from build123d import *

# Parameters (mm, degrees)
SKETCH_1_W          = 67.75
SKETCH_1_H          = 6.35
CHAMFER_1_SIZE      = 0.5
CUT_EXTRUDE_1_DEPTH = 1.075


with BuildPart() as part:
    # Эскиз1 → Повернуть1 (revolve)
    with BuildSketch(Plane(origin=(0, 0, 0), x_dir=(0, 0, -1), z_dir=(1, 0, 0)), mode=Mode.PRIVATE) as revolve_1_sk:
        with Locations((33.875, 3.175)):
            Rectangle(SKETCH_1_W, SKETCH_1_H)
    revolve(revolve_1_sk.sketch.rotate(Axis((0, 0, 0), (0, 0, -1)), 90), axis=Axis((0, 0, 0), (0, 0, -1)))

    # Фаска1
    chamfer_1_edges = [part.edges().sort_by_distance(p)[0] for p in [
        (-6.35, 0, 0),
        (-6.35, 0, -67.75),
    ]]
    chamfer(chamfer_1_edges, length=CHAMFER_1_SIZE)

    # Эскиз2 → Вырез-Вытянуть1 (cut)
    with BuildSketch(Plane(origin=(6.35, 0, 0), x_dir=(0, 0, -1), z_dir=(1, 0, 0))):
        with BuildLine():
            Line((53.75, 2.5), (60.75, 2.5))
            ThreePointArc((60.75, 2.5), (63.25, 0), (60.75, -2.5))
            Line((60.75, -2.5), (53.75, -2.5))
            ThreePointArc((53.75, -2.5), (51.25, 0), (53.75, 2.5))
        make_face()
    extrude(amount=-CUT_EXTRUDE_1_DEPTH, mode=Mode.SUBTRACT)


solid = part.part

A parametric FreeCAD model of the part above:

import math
import FreeCAD as App
import Part
import Sketcher

V = App.Vector


def edges_at(feature, points):
    """Names of the edges that pass closest to the given points."""
    edges = feature.Shape.Edges
    near = lambda p: min(range(len(edges)), key=lambda i: edges[i].distToShape(Part.Vertex(*p))[0])
    return sorted({f"Edge{near(p) + 1}" for p in points})


def add_polygon(sketch, points):
    """Adds a closed chain of lines whose ends are joined by coincident constraints."""
    first, n = sketch.GeometryCount, len(points)
    for a, b in zip(points, points[1:] + points[:1]):
        sketch.addGeometry(Part.LineSegment(App.Vector(*a, 0), App.Vector(*b, 0)), False)
    for i in range(n):
        sketch.addConstraint(Sketcher.Constraint("Coincident", first + i, 2, first + (i + 1) % n, 1))

doc = App.newDocument("Part")
body = doc.addObject("PartDesign::Body", "Body")

# Sketch on YZ plane
sketch1 = body.newObject("Sketcher::SketchObject", "Sketch")
sketch1.AttachmentSupport = (doc.getObject("YZ_Plane"), [""])
sketch1.MapMode = "FlatFace"
add_polygon(sketch1, [(6, 0), (0, 0), (0, -68), (6, -68)])  # lines 0-3
sketch1.addConstraint([
    Sketcher.Constraint("Horizontal", 0),
    Sketcher.Constraint("Vertical", 1),
    Sketcher.Constraint("Horizontal", 2),
    Sketcher.Constraint("Vertical", 3),
    Sketcher.Constraint("Coincident", 0, 2, -1, 1),
    Sketcher.Constraint("DistanceX", 0, 2, 0, 1, 6.35),
    Sketcher.Constraint("DistanceY", 1, 2, 1, 1, 67.75),
])
revolution = body.newObject("PartDesign::Revolution", "Revolution")
revolution.Profile = sketch1
revolution.ReferenceAxis = (sketch1, ["V_Axis"])
revolution.Angle = 360
doc.recompute()

chamfer = body.newObject("PartDesign::Chamfer", "Chamfer")
chamfer.Base = (revolution, edges_at(revolution, [(-6.35, 0, 0), (-6.35, 0, -67.75)]))
chamfer.Size = 0.5

# Sketch on YZ plane
sketch2 = body.newObject("Sketcher::SketchObject", "Sketch001")
sketch2.AttachmentSupport = (doc.getObject("YZ_Plane"), [""])
sketch2.MapMode = "FlatFace"
sketch2.AttachmentOffset = App.Placement(V(0, 0, 6.35), App.Rotation())
sketch2.addGeometry([
    Part.LineSegment(V(2.5, -60.8, 0), V(2.5, -53.8, 0)),
    Part.ArcOfCircle(Part.Circle(V(0, -53.8, 0), V(0, 0, 1), 2.5), math.radians(0), math.radians(180)),
    Part.LineSegment(V(-2.5, -53.8, 0), V(-2.5, -60.8, 0)),
    Part.ArcOfCircle(Part.Circle(V(0, -60.8, 0), V(0, 0, 1), 2.5), math.radians(180), math.radians(360)),
], False)
sketch2.addConstraint([
    Sketcher.Constraint("Tangent", 0, 2, 1, 1),
    Sketcher.Constraint("Tangent", 1, 2, 2, 1),
    Sketcher.Constraint("Tangent", 2, 2, 3, 1),
    Sketcher.Constraint("Tangent", 3, 2, 0, 1),
    Sketcher.Constraint("Vertical", 0),
    Sketcher.Constraint("Vertical", 2),
    Sketcher.Constraint("PointOnObject", 1, 3, -2),
    Sketcher.Constraint("Radius", 1, 2.5),
    Sketcher.Constraint("DistanceY", 0, 1, 0, 2, 7.0),
    Sketcher.Constraint("DistanceY", 1, 3, -1, 1, 53.75),
])
pocket1 = body.newObject("PartDesign::Pocket", "Pocket")
pocket1.Profile = sketch2
pocket1.Length = 1.075

doc.recompute()
